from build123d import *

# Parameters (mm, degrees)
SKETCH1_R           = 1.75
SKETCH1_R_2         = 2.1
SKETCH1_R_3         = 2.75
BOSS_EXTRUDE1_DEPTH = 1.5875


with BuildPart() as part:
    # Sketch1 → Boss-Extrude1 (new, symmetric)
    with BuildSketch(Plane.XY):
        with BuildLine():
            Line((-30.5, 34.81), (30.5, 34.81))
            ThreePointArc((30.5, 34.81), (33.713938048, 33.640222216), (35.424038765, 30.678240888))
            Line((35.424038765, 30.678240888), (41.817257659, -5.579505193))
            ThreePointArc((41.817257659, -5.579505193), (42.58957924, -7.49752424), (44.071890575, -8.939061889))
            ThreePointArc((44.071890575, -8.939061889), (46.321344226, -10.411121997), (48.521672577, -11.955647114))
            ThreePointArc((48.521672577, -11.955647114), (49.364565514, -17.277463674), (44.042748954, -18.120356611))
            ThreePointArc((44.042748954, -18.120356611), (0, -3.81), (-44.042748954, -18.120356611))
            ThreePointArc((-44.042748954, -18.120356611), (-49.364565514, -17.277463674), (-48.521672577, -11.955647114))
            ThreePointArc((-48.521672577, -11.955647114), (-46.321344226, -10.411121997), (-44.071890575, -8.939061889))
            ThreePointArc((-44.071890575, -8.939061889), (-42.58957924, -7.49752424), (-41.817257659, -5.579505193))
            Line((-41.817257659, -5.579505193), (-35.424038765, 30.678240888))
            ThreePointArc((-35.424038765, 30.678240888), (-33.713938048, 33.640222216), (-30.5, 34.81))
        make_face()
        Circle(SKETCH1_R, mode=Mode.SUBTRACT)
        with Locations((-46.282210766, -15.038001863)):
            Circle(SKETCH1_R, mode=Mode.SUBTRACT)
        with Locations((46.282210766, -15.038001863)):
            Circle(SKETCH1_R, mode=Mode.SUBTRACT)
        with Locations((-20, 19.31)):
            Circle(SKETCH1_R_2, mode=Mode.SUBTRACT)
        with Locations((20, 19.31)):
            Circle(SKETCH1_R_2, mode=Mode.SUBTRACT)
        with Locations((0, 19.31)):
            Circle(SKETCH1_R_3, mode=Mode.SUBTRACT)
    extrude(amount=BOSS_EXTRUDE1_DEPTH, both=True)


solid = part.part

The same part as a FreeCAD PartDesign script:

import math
import FreeCAD as App
import Part
import Sketcher
from FreeCAD import Vector
Q = App.Units.Quantity

doc = App.newDocument("Part")
body = doc.addObject("PartDesign::Body", "Body")

# Sketch on XY plane
sketch1 = body.newObject("Sketcher::SketchObject", "Sketch")
sketch1.AttachmentSupport = (doc.getObject("XY_Plane"), [""])
sketch1.MapMode = "FlatFace"
sketch1.addGeometry(Part.LineSegment(Vector(30.5, 34.81, 0), Vector(-30.5, 34.81, 0)), False)
sketch1.addGeometry(Part.ArcOfCircle(Part.Circle(Vector(-30.5, 29.81, 0), Vector(0, 0, 1), 5), math.radians(90), math.radians(170)), False)
sketch1.addGeometry(Part.LineSegment(Vector(-35.424039, 30.678241, 0), Vector(-41.817258, -5.579505, 0)), False)
sketch1.addGeometry(Part.ArcOfCircle(Part.Circle(Vector(-46.741296, -4.711264, 0), Vector(0, 0, 1), 5), math.radians(-57.731933), math.radians(-10)), False)
sketch1.addGeometry(Part.ArcOfCircle(Part.Circle(Vector(0, -78.74, 0), Vector(0, 0, 1), 82.55), math.radians(122.268067), math.radians(126)), False)
sketch1.addGeometry(Part.ArcOfCircle(Part.Circle(Vector(-46.282211, -15.038002, 0), Vector(0, 0, 1), 3.81), math.radians(126), math.radians(306)), False)
sketch1.addGeometry(Part.ArcOfCircle(Part.Circle(Vector(0, -78.74, 0), Vector(0, 0, 1), 74.93), math.radians(54), math.radians(126)), False)
sketch1.addGeometry(Part.ArcOfCircle(Part.Circle(Vector(46.282211, -15.038002, 0), Vector(0, 0, 1), 3.81), math.radians(-126), math.radians(54)), False)
sketch1.addGeometry(Part.ArcOfCircle(Part.Circle(Vector(0, -78.74, 0), Vector(0, 0, 1), 82.55), math.radians(54), math.radians(57.731933)), False)
sketch1.addGeometry(Part.ArcOfCircle(Part.Circle(Vector(46.741296, -4.711264, 0), Vector(0, 0, 1), 5), math.radians(-170), math.radians(-122.268067)), False)
sketch1.addGeometry(Part.LineSegment(Vector(41.817258, -5.579505, 0), Vector(35.424039, 30.678241, 0)), False)
sketch1.addGeometry(Part.ArcOfCircle(Part.Circle(Vector(30.5, 29.81, 0), Vector(0, 0, 1), 5), math.radians(10), math.radians(90)), False)
sketch1.addGeometry(Part.Circle(Vector(46.282211, -15.038002, 0), Vector(0, 0, 1), 1.75), False)
sketch1.addGeometry(Part.Circle(Vector(-46.282211, -15.038002, 0), Vector(0, 0, 1), 1.75), False)
sketch1.addGeometry(Part.Circle(Vector(0, 0, 0), Vector(0, 0, 1), 1.75), False)
sketch1.addGeometry(Part.Circle(Vector(20, 19.31, 0), Vector(0, 0, 1), 2.1), False)
sketch1.addGeometry(Part.Circle(Vector(0, 19.31, 0), Vector(0, 0, 1), 2.75), False)
sketch1.addGeometry(Part.Circle(Vector(-20, 19.31, 0), Vector(0, 0, 1), 2.1), False)
sketch1.addConstraint(Sketcher.Constraint("Tangent", 0, 2, 1, 1))
sketch1.addConstraint(Sketcher.Constraint("Tangent", 1, 2, 2, 1))
sketch1.addConstraint(Sketcher.Constraint("Tangent", 2, 2, 3, 2))
sketch1.addConstraint(Sketcher.Constraint("Tangent", 3, 1, 4, 1))
sketch1.addConstraint(Sketcher.Constraint("Tangent", 4, 2, 5, 1))
sketch1.addConstraint(Sketcher.Constraint("Tangent", 5, 2, 6, 2))
sketch1.addConstraint(Sketcher.Constraint("Tangent", 6, 1, 7, 1))
sketch1.addConstraint(Sketcher.Constraint("Tangent", 7, 2, 8, 1))
sketch1.addConstraint(Sketcher.Constraint("Tangent", 8, 2, 9, 2))
sketch1.addConstraint(Sketcher.Constraint("Tangent", 9, 1, 10, 1))
sketch1.addConstraint(Sketcher.Constraint("Tangent", 10, 2, 11, 1))
sketch1.addConstraint(Sketcher.Constraint("Tangent", 11, 2, 0, 1))
sketch1.addConstraint(Sketcher.Constraint("Horizontal", 0))
sketch1.addConstraint(Sketcher.Constraint("Coincident", 14, 3, -1, 1))
sketch1.addConstraint(Sketcher.Constraint("Coincident", 6, 3, 4, 3))
sketch1.addConstraint(Sketcher.Constraint("Coincident", 8, 3, 4, 3))
sketch1.addConstraint(Sketcher.Constraint("Coincident", 12, 3, 7, 3))
sketch1.addConstraint(Sketcher.Constraint("Coincident", 13, 3, 5, 3))
sketch1.addConstraint(Sketcher.Constraint("Equal", 1, 3))
sketch1.addConstraint(Sketcher.Constraint("Equal", 5, 7))
sketch1.addConstraint(Sketcher.Constraint("Equal", 3, 9))
sketch1.addConstraint(Sketcher.Constraint("Equal", 9, 11))
sketch1.addConstraint(Sketcher.Constraint("Equal", 12, 13))
sketch1.addConstraint(Sketcher.Constraint("Equal", 13, 14))
sketch1.addConstraint(Sketcher.Constraint("Equal", 15, 17))
sketch1.addConstraint(Sketcher.Constraint("Symmetric", 5, 3, 7, 3, -2))
sketch1.addConstraint(Sketcher.Constraint("Symmetric", 15, 3, 17, 3, -2))
sketch1.addConstraint(Sketcher.Constraint("Symmetric", 2, 2, 9, 1, -2))
sketch1.addConstraint(Sketcher.Constraint("PointOnObject", 16, 3, -2))
sketch1.addConstraint(Sketcher.Constraint("Horizontal", 15, 3, 16, 3))
sketch1.addConstraint(Sketcher.Constraint("Radius", 1, 5.0))
sketch1.addConstraint(Sketcher.Constraint("Diameter", 12, 3.5))
sketch1.addConstraint(Sketcher.Constraint("Diameter", 15, 4.2))
sketch1.addConstraint(Sketcher.Constraint("Diameter", 16, 5.5))
sketch1.addConstraint(Sketcher.Constraint("DistanceX", 0, 2, 0, 1, 61.0))
sketch1.addConstraint(Sketcher.Constraint("Angle", 2, Q("-100 deg")))
sketch1.addConstraint(Sketcher.Constraint("Radius", 4, 82.55))
sketch1.addConstraint(Sketcher.Constraint("Radius", 5, 3.81))
sketch1.addConstraint(Sketcher.Constraint("DistanceX", -1, 1, 15, 3, 20.0))
sketch1.addConstraint(Sketcher.Constraint("DistanceY", 15, 3, 11, 3, 10.5))
sketch1.addConstraint(Sketcher.Constraint("DistanceY", -1, 1, 1, 3, 29.81))
sketch1.addConstraint(Sketcher.Constraint("DistanceY", 4, 3, -1, 1, 78.74))
sketch1.addConstraint(Sketcher.Constraint("DistanceY", 5, 3, -1, 1, 15.038002))
pad1 = body.newObject("PartDesign::Pad", "Pad")
pad1.Profile = sketch1
pad1.Length = 3.175
pad1.Midplane = True

doc.recompute()
